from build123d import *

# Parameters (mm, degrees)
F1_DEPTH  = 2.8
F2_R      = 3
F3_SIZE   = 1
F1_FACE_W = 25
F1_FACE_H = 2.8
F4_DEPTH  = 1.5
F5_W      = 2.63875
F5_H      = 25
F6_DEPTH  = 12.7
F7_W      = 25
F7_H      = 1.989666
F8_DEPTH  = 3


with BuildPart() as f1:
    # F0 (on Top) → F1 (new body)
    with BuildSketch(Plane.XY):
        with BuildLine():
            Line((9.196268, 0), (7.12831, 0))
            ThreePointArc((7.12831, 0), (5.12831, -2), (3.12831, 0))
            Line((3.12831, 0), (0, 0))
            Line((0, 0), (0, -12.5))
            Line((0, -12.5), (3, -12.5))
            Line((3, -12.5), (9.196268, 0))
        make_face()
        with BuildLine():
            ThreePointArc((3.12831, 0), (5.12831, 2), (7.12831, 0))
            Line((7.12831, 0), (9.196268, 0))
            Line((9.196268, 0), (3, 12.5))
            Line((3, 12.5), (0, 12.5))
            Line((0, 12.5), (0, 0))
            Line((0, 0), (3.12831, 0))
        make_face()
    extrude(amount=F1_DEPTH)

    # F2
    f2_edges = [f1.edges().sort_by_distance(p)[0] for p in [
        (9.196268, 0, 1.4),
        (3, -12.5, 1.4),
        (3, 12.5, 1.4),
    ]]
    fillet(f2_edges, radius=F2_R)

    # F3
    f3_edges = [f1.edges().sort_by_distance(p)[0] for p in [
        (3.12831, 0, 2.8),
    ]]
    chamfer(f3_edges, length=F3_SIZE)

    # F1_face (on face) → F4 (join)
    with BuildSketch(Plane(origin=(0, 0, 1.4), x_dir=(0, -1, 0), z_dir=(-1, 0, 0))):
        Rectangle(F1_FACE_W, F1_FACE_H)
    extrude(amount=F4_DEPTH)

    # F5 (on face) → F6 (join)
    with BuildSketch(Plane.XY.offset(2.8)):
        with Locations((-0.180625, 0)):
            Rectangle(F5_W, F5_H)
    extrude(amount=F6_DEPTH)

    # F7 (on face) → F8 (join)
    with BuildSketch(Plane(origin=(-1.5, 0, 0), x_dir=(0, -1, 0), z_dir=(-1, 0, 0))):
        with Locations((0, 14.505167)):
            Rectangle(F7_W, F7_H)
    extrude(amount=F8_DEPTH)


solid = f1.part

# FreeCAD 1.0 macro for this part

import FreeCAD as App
import Part
import Sketcher

V = App.Vector
Q = App.Units.Quantity


def edges_at(feature, points):
    """Names of the edges that pass closest to the given points."""
    edges = feature.Shape.Edges
    near = lambda p: min(range(len(edges)), key=lambda i: edges[i].distToShape(Part.Vertex(*p))[0])
    return sorted({f"Edge{near(p) + 1}" for p in points})


def add_polygon(sketch, points):
    """Adds a closed chain of lines whose ends are joined by coincident constraints."""
    first, n = sketch.GeometryCount, len(points)
    for a, b in zip(points, points[1:] + points[:1]):
        sketch.addGeometry(Part.LineSegment(App.Vector(*a, 0), App.Vector(*b, 0)), False)
    for i in range(n):
        sketch.addConstraint(Sketcher.Constraint("Coincident", first + i, 2, first + (i + 1) % n, 1))

doc = App.newDocument("Part")
body = doc.addObject("PartDesign::Body", "Body")

# Sketch on XY plane
sketch1 = doc.addObject("Sketcher::SketchObject", "Sketch")
body.addObject(sketch1)
sketch1.AttachmentSupport = (doc.XY_Plane, [""])
sketch1.MapMode = "FlatFace"
add_polygon(sketch1, [(0, -12.5), (3, -12.5), (9.196268, 0), (3, 12.5), (0, 12.5)])  # lines 0-4
sketch1.addGeometry(Part.Circle(V(5.12831, 0, 0), V(0, 0, 1), 2), False)  # 5
sketch1.addConstraint([
    Sketcher.Constraint("Horizontal", 0),
    Sketcher.Constraint("Horizontal", 3),
    Sketcher.Constraint("Vertical", 4),
    Sketcher.Constraint("Symmetric", 3, 2, 4, 2, -1, 1),
    Sketcher.Constraint("PointOnObject", 5, 3, -1),
    Sketcher.Constraint("PointOnObject", 1, 2, -1),
    Sketcher.Constraint("Vertical", 0, 2, 2, 2),
    Sketcher.Constraint("Diameter", 5, Q("4 mm")),
    Sketcher.Constraint("DistanceX", 0, 1, 0, 2, Q("3 mm")),
    Sketcher.Constraint("DistanceY", 4, 2, 4, 1, Q("25 mm")),
    Sketcher.Constraint("DistanceX", -1, 1, 5, 3, Q("5.12831 mm")),
    Sketcher.Constraint("Distance", 1, Q("13.951478 mm")),
])
pad1 = doc.addObject("PartDesign::Pad", "Pad")
body.addObject(pad1)
pad1.Profile = sketch1
pad1.Length = 2.8
doc.recompute()

fillet = doc.addObject("PartDesign::Fillet", "Fillet")
body.addObject(fillet)
fillet.Base = (pad1, edges_at(pad1, [(9.196, 0, 1.4), (3, -12.5, 1.4), (3, 12.5, 1.4)]))
fillet.Radius = 3
doc.recompute()

chamfer = doc.addObject("PartDesign::Chamfer", "Chamfer")
body.addObject(chamfer)
chamfer.Base = (fillet, edges_at(fillet, [(7.128, 0, 2.8)]))
chamfer.Size = 1

# Sketch on YZ plane
sketch2 = doc.addObject("Sketcher::SketchObject", "Sketch001")
body.addObject(sketch2)
sketch2.AttachmentSupport = (doc.YZ_Plane, [""])
sketch2.MapMode = "FlatFace"
add_polygon(sketch2, [(12.5, 2.8), (12.5, 0), (-12.5, 0), (-12.5, 2.8)])  # lines 0-3
sketch2.addConstraint([
    Sketcher.Constraint("Vertical", 0),
    Sketcher.Constraint("Horizontal", 1),
    Sketcher.Constraint("Vertical", 2),
    Sketcher.Constraint("Horizontal", 3),
    Sketcher.Constraint("Symmetric", 0, 2, 1, 2, -1, 1),
    Sketcher.Constraint("DistanceX", 1, 2, 1, 1, Q("25 mm")),
    Sketcher.Constraint("DistanceY", 0, 2, 0, 1, Q("2.8 mm")),
])
pad2 = doc.addObject("PartDesign::Pad", "Pad001")
body.addObject(pad2)
pad2.Profile = sketch2
pad2.Length = 1.5
pad2.Reversed = True

# Sketch on XY plane
sketch3 = doc.addObject("Sketcher::SketchObject", "Sketch002")
body.addObject(sketch3)
sketch3.AttachmentSupport = (doc.XY_Plane, [""])
sketch3.MapMode = "FlatFace"
sketch3.AttachmentOffset = App.Placement(V(0, 0, 2.8), App.Rotation())
add_polygon(sketch3, [(-1.5, 12.5), (-1.5, -12.5), (1.13875, -12.5), (1.13875, 12.5)])  # lines 0-3
sketch3.addConstraint([
    Sketcher.Constraint("Vertical", 0),
    Sketcher.Constraint("Horizontal", 1),
    Sketcher.Constraint("Vertical", 2),
    Sketcher.Constraint("Horizontal", 3),
    Sketcher.Constraint("DistanceY", 0, 2, 0, 1, Q("25 mm")),
    Sketcher.Constraint("DistanceX", 0, 2, -1, 1, Q("1.5 mm")),
    Sketcher.Constraint("DistanceY", 0, 2, -1, 1, Q("12.5 mm")),
    Sketcher.Constraint("DistanceX", 1, 1, 1, 2, Q("2.63875 mm")),
])
pad3 = doc.addObject("PartDesign::Pad", "Pad002")
body.addObject(pad3)
pad3.Profile = sketch3
pad3.Length = 12.7

# Sketch on YZ plane
sketch4 = doc.addObject("Sketcher::SketchObject", "Sketch003")
body.addObject(sketch4)
sketch4.AttachmentSupport = (doc.YZ_Plane, [""])
sketch4.MapMode = "FlatFace"
sketch4.AttachmentOffset = App.Placement(V(0, 0, -1.5), App.Rotation())
add_polygon(sketch4, [(12.5, 15.5), (12.5, 13.510334), (-12.5, 13.510334), (-12.5, 15.5)])  # lines 0-3
sketch4.addConstraint([
    Sketcher.Constraint("Vertical", 0),
    Sketcher.Constraint("Horizontal", 1),
    Sketcher.Constraint("Vertical", 2),
    Sketcher.Constraint("Horizontal", 3),
    Sketcher.Constraint("DistanceX", 1, 2, 1, 1, Q("25 mm")),
    Sketcher.Constraint("DistanceX", -1, 1, 0, 2, Q("12.5 mm")),
    Sketcher.Constraint("DistanceY", -1, 1, 2, 2, Q("15.5 mm")),
    Sketcher.Constraint("DistanceY", 0, 2, 0, 1, Q("1.989666 mm")),
])
pad4 = doc.addObject("PartDesign::Pad", "Pad003")
body.addObject(pad4)
pad4.Profile = sketch4
pad4.Length = 3
pad4.Reversed = True

doc.recompute()
